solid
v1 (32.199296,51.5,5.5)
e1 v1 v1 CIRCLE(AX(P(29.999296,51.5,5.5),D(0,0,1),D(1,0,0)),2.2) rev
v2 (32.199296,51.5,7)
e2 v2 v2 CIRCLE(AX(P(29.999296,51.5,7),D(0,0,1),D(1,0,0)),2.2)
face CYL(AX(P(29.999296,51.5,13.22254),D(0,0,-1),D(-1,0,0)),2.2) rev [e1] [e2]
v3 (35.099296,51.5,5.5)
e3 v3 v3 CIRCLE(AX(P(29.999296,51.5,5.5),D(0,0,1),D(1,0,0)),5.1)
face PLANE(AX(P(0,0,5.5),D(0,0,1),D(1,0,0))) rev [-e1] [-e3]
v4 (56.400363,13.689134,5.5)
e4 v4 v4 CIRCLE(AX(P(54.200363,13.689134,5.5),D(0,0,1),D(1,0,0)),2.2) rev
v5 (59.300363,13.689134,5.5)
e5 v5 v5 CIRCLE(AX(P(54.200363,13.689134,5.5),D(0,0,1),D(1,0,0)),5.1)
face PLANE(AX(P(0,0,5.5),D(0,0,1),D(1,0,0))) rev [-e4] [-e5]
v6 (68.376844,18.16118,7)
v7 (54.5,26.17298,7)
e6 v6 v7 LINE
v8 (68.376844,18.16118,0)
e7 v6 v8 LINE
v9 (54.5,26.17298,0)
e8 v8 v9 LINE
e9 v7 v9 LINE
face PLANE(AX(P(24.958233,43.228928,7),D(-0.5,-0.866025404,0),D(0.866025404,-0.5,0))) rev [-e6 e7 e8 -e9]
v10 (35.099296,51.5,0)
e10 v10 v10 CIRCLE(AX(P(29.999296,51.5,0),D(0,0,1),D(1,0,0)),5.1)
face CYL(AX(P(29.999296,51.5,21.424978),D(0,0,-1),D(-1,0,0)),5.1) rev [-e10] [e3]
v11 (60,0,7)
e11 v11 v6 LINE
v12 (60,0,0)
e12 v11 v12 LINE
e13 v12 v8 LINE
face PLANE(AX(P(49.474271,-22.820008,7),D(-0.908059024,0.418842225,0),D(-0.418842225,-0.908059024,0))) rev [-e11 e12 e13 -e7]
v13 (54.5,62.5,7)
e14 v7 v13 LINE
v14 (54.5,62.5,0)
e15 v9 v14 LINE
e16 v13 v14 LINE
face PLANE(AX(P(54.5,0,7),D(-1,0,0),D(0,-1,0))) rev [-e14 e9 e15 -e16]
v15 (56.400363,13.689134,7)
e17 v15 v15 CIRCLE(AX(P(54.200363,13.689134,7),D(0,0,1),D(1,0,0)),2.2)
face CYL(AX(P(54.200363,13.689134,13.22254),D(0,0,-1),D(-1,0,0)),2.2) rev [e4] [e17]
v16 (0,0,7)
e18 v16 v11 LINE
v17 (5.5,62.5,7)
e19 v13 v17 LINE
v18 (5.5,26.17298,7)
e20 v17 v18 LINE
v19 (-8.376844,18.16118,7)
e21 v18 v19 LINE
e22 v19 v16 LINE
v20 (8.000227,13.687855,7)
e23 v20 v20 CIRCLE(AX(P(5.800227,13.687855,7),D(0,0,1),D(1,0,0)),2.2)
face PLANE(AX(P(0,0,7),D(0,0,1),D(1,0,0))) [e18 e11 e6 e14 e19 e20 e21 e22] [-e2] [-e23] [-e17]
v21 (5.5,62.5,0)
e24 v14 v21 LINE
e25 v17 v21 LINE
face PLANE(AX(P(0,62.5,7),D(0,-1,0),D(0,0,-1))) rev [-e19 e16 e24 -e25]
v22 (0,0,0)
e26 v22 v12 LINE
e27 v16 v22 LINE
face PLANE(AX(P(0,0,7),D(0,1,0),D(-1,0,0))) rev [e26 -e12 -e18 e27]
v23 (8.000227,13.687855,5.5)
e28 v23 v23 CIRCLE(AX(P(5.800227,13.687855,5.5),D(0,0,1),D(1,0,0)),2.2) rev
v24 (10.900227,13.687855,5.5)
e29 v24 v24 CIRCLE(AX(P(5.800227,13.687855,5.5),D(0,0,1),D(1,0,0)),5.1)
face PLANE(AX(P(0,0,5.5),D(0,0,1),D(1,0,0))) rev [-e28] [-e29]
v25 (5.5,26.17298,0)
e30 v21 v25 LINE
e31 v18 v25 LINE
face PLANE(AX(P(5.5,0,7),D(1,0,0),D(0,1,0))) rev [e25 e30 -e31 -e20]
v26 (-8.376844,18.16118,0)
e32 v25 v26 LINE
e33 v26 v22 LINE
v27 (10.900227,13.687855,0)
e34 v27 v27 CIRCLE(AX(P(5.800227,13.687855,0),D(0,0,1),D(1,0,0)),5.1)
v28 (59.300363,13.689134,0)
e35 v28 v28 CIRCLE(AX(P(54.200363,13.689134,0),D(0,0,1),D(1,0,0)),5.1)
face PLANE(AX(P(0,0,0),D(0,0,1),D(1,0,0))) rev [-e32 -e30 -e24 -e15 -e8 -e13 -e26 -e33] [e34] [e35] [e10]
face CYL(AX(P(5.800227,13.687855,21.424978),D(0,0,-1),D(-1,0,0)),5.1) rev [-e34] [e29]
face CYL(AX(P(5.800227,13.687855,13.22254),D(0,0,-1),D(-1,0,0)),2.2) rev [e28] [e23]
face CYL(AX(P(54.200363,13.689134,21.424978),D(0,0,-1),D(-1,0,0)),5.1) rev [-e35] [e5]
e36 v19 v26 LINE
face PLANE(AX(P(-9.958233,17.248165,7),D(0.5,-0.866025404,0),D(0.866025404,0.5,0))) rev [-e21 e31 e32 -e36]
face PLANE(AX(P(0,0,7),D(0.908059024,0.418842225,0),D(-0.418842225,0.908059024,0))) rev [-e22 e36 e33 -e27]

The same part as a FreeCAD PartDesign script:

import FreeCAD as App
import Part
import Sketcher
from FreeCAD import Vector
Q = App.Units.Quantity

doc = App.newDocument("Part")
body = doc.addObject("PartDesign::Body", "Body")

# Sketch on XY plane
sketch1 = doc.addObject("Sketcher::SketchObject", "Sketch")
body.addObject(sketch1)
sketch1.AttachmentSupport = (doc.XY_Plane, [""])
sketch1.MapMode = "FlatFace"
sketch1.addGeometry(Part.LineSegment(Vector(54, 26, 0), Vector(54, 62, 0)), False)
sketch1.addGeometry(Part.LineSegment(Vector(54, 62, 0), Vector(6, 62, 0)), False)
sketch1.addGeometry(Part.LineSegment(Vector(6, 62, 0), Vector(6, 26, 0)), False)
sketch1.addGeometry(Part.LineSegment(Vector(6, 26, 0), Vector(-8, 18, 0)), False)
sketch1.addGeometry(Part.LineSegment(Vector(-8, 18, 0), Vector(0, 0, 0)), False)
sketch1.addGeometry(Part.LineSegment(Vector(0, 0, 0), Vector(60, 0, 0)), False)
sketch1.addGeometry(Part.LineSegment(Vector(60, 0, 0), Vector(68, 18, 0)), False)
sketch1.addGeometry(Part.LineSegment(Vector(68, 18, 0), Vector(54, 26, 0)), False)
sketch1.addConstraint(Sketcher.Constraint("Coincident", 0, 2, 1, 1))
sketch1.addConstraint(Sketcher.Constraint("Coincident", 1, 2, 2, 1))
sketch1.addConstraint(Sketcher.Constraint("Coincident", 2, 2, 3, 1))
sketch1.addConstraint(Sketcher.Constraint("Coincident", 3, 2, 4, 1))
sketch1.addConstraint(Sketcher.Constraint("Coincident", 4, 2, 5, 1))
sketch1.addConstraint(Sketcher.Constraint("Coincident", 5, 2, 6, 1))
sketch1.addConstraint(Sketcher.Constraint("Coincident", 6, 2, 7, 1))
sketch1.addConstraint(Sketcher.Constraint("Coincident", 7, 2, 0, 1))
sketch1.addConstraint(Sketcher.Constraint("Vertical", 0))
sketch1.addConstraint(Sketcher.Constraint("Horizontal", 1))
sketch1.addConstraint(Sketcher.Constraint("Vertical", 2))
sketch1.addConstraint(Sketcher.Constraint("Horizontal", 5))
sketch1.addConstraint(Sketcher.Constraint("Coincident", 4, 2, -1, 1))
sketch1.addConstraint(Sketcher.Constraint("Horizontal", 3, 2, 6, 2))
sketch1.addConstraint(Sketcher.Constraint("Horizontal", 2, 2, 7, 2))
sketch1.addConstraint(Sketcher.Constraint("Equal", 4, 6))
sketch1.addConstraint(Sketcher.Constraint("Equal", 3, 7))
sketch1.addConstraint(Sketcher.Constraint("DistanceX", 1, 2, 1, 1, 49.0))
sketch1.addConstraint(Sketcher.Constraint("DistanceX", 5, 1, 5, 2, 60.0))
sketch1.addConstraint(Sketcher.Constraint("Angle", 3, Q("-150 deg")))
sketch1.addConstraint(Sketcher.Constraint("Distance", 4, 20.0))
sketch1.addConstraint(Sketcher.Constraint("DistanceY", -1, 1, 0, 2, 62.5))
sketch1.addConstraint(Sketcher.Constraint("Distance", 3, 16.0236))
pad1 = doc.addObject("PartDesign::Pad", "Pad")
body.addObject(pad1)
pad1.Profile = sketch1
pad1.Length = 7

# Sketch on XY plane
sketch2 = doc.addObject("Sketcher::SketchObject", "Sketch001")
body.addObject(sketch2)
sketch2.AttachmentSupport = (doc.XY_Plane, [""])
sketch2.MapMode = "FlatFace"
sketch2.addGeometry(Part.Circle(Vector(30, 51.5, 0), Vector(0, 0, 1), 5.1), False)
sketch2.addGeometry(Part.Circle(Vector(30, 51.5, 0), Vector(0, 0, 1), 2.2), False)
sketch2.addGeometry(Part.Circle(Vector(54.2, 13.7, 0), Vector(0, 0, 1), 5.1), False)
sketch2.addGeometry(Part.Circle(Vector(54.2, 13.7, 0), Vector(0, 0, 1), 2.2), False)
sketch2.addGeometry(Part.Circle(Vector(5.8, 13.7, 0), Vector(0, 0, 1), 5.1), False)
sketch2.addGeometry(Part.Circle(Vector(5.8, 13.7, 0), Vector(0, 0, 1), 2.2), False)
sketch2.addConstraint(Sketcher.Constraint("Coincident", 1, 3, 0, 3))
sketch2.addConstraint(Sketcher.Constraint("Coincident", 3, 3, 2, 3))
sketch2.addConstraint(Sketcher.Constraint("Coincident", 5, 3, 4, 3))
sketch2.addConstraint(Sketcher.Constraint("Equal", 0, 2))
sketch2.addConstraint(Sketcher.Constraint("Equal", 1, 3))
sketch2.addConstraint(Sketcher.Constraint("Equal", 2, 4))
sketch2.addConstraint(Sketcher.Constraint("Equal", 3, 5))
sketch2.addConstraint(Sketcher.Constraint("Diameter", 0, 10.2))
sketch2.addConstraint(Sketcher.Constraint("Diameter", 1, 4.4))
sketch2.addConstraint(Sketcher.Constraint("DistanceY", -1, 1, 0, 3, 51.5))
sketch2.addConstraint(Sketcher.Constraint("DistanceX", 4, 3, 0, 3, 24.199069))
sketch2.addConstraint(Sketcher.Constraint("DistanceY", 4, 3, 2, 3, 0.001279))
sketch2.addConstraint(Sketcher.Constraint("DistanceX", -1, 1, 0, 3, 29.999296))
sketch2.addConstraint(Sketcher.Constraint("DistanceX", -1, 1, 2, 3, 54.200363))
sketch2.addConstraint(Sketcher.Constraint("DistanceY", -1, 1, 2, 3, 13.689134))
pocket1 = doc.addObject("PartDesign::Pocket", "Pocket")
body.addObject(pocket1)
pocket1.Profile = sketch2
pocket1.Length = 5.5
pocket1.Reversed = True

# Sketch on XY plane
sketch3 = doc.addObject("Sketcher::SketchObject", "Sketch002")
body.addObject(sketch3)
sketch3.AttachmentSupport = (doc.XY_Plane, [""])
sketch3.MapMode = "FlatFace"
sketch3.addGeometry(Part.Circle(Vector(54.2, 13.7, 0), Vector(0, 0, 1), 2.2), False)
sketch3.addGeometry(Part.Circle(Vector(5.8, 13.7, 0), Vector(0, 0, 1), 2.2), False)
sketch3.addGeometry(Part.Circle(Vector(30, 51.5, 0), Vector(0, 0, 1), 2.2), False)
sketch3.addConstraint(Sketcher.Constraint("Equal", 0, 1))
sketch3.addConstraint(Sketcher.Constraint("Equal", 1, 2))
sketch3.addConstraint(Sketcher.Constraint("Diameter", 0, 4.4))
sketch3.addConstraint(Sketcher.Constraint("DistanceY", -1, 1, 2, 3, 51.5))
sketch3.addConstraint(Sketcher.Constraint("DistanceY", 1, 3, 0, 3, 0.001279))
sketch3.addConstraint(Sketcher.Constraint("DistanceX", 1, 3, 2, 3, 24.199069))
sketch3.addConstraint(Sketcher.Constraint("DistanceX", -1, 1, 0, 3, 54.200363))
sketch3.addConstraint(Sketcher.Constraint("DistanceY", -1, 1, 0, 3, 13.689134))
sketch3.addConstraint(Sketcher.Constraint("DistanceX", -1, 1, 1, 3, 5.800227))
pocket2 = doc.addObject("PartDesign::Pocket", "Pocket001")
body.addObject(pocket2)
pocket2.Profile = sketch3
pocket2.Length = 7
pocket2.Reversed = True

doc.recompute()
